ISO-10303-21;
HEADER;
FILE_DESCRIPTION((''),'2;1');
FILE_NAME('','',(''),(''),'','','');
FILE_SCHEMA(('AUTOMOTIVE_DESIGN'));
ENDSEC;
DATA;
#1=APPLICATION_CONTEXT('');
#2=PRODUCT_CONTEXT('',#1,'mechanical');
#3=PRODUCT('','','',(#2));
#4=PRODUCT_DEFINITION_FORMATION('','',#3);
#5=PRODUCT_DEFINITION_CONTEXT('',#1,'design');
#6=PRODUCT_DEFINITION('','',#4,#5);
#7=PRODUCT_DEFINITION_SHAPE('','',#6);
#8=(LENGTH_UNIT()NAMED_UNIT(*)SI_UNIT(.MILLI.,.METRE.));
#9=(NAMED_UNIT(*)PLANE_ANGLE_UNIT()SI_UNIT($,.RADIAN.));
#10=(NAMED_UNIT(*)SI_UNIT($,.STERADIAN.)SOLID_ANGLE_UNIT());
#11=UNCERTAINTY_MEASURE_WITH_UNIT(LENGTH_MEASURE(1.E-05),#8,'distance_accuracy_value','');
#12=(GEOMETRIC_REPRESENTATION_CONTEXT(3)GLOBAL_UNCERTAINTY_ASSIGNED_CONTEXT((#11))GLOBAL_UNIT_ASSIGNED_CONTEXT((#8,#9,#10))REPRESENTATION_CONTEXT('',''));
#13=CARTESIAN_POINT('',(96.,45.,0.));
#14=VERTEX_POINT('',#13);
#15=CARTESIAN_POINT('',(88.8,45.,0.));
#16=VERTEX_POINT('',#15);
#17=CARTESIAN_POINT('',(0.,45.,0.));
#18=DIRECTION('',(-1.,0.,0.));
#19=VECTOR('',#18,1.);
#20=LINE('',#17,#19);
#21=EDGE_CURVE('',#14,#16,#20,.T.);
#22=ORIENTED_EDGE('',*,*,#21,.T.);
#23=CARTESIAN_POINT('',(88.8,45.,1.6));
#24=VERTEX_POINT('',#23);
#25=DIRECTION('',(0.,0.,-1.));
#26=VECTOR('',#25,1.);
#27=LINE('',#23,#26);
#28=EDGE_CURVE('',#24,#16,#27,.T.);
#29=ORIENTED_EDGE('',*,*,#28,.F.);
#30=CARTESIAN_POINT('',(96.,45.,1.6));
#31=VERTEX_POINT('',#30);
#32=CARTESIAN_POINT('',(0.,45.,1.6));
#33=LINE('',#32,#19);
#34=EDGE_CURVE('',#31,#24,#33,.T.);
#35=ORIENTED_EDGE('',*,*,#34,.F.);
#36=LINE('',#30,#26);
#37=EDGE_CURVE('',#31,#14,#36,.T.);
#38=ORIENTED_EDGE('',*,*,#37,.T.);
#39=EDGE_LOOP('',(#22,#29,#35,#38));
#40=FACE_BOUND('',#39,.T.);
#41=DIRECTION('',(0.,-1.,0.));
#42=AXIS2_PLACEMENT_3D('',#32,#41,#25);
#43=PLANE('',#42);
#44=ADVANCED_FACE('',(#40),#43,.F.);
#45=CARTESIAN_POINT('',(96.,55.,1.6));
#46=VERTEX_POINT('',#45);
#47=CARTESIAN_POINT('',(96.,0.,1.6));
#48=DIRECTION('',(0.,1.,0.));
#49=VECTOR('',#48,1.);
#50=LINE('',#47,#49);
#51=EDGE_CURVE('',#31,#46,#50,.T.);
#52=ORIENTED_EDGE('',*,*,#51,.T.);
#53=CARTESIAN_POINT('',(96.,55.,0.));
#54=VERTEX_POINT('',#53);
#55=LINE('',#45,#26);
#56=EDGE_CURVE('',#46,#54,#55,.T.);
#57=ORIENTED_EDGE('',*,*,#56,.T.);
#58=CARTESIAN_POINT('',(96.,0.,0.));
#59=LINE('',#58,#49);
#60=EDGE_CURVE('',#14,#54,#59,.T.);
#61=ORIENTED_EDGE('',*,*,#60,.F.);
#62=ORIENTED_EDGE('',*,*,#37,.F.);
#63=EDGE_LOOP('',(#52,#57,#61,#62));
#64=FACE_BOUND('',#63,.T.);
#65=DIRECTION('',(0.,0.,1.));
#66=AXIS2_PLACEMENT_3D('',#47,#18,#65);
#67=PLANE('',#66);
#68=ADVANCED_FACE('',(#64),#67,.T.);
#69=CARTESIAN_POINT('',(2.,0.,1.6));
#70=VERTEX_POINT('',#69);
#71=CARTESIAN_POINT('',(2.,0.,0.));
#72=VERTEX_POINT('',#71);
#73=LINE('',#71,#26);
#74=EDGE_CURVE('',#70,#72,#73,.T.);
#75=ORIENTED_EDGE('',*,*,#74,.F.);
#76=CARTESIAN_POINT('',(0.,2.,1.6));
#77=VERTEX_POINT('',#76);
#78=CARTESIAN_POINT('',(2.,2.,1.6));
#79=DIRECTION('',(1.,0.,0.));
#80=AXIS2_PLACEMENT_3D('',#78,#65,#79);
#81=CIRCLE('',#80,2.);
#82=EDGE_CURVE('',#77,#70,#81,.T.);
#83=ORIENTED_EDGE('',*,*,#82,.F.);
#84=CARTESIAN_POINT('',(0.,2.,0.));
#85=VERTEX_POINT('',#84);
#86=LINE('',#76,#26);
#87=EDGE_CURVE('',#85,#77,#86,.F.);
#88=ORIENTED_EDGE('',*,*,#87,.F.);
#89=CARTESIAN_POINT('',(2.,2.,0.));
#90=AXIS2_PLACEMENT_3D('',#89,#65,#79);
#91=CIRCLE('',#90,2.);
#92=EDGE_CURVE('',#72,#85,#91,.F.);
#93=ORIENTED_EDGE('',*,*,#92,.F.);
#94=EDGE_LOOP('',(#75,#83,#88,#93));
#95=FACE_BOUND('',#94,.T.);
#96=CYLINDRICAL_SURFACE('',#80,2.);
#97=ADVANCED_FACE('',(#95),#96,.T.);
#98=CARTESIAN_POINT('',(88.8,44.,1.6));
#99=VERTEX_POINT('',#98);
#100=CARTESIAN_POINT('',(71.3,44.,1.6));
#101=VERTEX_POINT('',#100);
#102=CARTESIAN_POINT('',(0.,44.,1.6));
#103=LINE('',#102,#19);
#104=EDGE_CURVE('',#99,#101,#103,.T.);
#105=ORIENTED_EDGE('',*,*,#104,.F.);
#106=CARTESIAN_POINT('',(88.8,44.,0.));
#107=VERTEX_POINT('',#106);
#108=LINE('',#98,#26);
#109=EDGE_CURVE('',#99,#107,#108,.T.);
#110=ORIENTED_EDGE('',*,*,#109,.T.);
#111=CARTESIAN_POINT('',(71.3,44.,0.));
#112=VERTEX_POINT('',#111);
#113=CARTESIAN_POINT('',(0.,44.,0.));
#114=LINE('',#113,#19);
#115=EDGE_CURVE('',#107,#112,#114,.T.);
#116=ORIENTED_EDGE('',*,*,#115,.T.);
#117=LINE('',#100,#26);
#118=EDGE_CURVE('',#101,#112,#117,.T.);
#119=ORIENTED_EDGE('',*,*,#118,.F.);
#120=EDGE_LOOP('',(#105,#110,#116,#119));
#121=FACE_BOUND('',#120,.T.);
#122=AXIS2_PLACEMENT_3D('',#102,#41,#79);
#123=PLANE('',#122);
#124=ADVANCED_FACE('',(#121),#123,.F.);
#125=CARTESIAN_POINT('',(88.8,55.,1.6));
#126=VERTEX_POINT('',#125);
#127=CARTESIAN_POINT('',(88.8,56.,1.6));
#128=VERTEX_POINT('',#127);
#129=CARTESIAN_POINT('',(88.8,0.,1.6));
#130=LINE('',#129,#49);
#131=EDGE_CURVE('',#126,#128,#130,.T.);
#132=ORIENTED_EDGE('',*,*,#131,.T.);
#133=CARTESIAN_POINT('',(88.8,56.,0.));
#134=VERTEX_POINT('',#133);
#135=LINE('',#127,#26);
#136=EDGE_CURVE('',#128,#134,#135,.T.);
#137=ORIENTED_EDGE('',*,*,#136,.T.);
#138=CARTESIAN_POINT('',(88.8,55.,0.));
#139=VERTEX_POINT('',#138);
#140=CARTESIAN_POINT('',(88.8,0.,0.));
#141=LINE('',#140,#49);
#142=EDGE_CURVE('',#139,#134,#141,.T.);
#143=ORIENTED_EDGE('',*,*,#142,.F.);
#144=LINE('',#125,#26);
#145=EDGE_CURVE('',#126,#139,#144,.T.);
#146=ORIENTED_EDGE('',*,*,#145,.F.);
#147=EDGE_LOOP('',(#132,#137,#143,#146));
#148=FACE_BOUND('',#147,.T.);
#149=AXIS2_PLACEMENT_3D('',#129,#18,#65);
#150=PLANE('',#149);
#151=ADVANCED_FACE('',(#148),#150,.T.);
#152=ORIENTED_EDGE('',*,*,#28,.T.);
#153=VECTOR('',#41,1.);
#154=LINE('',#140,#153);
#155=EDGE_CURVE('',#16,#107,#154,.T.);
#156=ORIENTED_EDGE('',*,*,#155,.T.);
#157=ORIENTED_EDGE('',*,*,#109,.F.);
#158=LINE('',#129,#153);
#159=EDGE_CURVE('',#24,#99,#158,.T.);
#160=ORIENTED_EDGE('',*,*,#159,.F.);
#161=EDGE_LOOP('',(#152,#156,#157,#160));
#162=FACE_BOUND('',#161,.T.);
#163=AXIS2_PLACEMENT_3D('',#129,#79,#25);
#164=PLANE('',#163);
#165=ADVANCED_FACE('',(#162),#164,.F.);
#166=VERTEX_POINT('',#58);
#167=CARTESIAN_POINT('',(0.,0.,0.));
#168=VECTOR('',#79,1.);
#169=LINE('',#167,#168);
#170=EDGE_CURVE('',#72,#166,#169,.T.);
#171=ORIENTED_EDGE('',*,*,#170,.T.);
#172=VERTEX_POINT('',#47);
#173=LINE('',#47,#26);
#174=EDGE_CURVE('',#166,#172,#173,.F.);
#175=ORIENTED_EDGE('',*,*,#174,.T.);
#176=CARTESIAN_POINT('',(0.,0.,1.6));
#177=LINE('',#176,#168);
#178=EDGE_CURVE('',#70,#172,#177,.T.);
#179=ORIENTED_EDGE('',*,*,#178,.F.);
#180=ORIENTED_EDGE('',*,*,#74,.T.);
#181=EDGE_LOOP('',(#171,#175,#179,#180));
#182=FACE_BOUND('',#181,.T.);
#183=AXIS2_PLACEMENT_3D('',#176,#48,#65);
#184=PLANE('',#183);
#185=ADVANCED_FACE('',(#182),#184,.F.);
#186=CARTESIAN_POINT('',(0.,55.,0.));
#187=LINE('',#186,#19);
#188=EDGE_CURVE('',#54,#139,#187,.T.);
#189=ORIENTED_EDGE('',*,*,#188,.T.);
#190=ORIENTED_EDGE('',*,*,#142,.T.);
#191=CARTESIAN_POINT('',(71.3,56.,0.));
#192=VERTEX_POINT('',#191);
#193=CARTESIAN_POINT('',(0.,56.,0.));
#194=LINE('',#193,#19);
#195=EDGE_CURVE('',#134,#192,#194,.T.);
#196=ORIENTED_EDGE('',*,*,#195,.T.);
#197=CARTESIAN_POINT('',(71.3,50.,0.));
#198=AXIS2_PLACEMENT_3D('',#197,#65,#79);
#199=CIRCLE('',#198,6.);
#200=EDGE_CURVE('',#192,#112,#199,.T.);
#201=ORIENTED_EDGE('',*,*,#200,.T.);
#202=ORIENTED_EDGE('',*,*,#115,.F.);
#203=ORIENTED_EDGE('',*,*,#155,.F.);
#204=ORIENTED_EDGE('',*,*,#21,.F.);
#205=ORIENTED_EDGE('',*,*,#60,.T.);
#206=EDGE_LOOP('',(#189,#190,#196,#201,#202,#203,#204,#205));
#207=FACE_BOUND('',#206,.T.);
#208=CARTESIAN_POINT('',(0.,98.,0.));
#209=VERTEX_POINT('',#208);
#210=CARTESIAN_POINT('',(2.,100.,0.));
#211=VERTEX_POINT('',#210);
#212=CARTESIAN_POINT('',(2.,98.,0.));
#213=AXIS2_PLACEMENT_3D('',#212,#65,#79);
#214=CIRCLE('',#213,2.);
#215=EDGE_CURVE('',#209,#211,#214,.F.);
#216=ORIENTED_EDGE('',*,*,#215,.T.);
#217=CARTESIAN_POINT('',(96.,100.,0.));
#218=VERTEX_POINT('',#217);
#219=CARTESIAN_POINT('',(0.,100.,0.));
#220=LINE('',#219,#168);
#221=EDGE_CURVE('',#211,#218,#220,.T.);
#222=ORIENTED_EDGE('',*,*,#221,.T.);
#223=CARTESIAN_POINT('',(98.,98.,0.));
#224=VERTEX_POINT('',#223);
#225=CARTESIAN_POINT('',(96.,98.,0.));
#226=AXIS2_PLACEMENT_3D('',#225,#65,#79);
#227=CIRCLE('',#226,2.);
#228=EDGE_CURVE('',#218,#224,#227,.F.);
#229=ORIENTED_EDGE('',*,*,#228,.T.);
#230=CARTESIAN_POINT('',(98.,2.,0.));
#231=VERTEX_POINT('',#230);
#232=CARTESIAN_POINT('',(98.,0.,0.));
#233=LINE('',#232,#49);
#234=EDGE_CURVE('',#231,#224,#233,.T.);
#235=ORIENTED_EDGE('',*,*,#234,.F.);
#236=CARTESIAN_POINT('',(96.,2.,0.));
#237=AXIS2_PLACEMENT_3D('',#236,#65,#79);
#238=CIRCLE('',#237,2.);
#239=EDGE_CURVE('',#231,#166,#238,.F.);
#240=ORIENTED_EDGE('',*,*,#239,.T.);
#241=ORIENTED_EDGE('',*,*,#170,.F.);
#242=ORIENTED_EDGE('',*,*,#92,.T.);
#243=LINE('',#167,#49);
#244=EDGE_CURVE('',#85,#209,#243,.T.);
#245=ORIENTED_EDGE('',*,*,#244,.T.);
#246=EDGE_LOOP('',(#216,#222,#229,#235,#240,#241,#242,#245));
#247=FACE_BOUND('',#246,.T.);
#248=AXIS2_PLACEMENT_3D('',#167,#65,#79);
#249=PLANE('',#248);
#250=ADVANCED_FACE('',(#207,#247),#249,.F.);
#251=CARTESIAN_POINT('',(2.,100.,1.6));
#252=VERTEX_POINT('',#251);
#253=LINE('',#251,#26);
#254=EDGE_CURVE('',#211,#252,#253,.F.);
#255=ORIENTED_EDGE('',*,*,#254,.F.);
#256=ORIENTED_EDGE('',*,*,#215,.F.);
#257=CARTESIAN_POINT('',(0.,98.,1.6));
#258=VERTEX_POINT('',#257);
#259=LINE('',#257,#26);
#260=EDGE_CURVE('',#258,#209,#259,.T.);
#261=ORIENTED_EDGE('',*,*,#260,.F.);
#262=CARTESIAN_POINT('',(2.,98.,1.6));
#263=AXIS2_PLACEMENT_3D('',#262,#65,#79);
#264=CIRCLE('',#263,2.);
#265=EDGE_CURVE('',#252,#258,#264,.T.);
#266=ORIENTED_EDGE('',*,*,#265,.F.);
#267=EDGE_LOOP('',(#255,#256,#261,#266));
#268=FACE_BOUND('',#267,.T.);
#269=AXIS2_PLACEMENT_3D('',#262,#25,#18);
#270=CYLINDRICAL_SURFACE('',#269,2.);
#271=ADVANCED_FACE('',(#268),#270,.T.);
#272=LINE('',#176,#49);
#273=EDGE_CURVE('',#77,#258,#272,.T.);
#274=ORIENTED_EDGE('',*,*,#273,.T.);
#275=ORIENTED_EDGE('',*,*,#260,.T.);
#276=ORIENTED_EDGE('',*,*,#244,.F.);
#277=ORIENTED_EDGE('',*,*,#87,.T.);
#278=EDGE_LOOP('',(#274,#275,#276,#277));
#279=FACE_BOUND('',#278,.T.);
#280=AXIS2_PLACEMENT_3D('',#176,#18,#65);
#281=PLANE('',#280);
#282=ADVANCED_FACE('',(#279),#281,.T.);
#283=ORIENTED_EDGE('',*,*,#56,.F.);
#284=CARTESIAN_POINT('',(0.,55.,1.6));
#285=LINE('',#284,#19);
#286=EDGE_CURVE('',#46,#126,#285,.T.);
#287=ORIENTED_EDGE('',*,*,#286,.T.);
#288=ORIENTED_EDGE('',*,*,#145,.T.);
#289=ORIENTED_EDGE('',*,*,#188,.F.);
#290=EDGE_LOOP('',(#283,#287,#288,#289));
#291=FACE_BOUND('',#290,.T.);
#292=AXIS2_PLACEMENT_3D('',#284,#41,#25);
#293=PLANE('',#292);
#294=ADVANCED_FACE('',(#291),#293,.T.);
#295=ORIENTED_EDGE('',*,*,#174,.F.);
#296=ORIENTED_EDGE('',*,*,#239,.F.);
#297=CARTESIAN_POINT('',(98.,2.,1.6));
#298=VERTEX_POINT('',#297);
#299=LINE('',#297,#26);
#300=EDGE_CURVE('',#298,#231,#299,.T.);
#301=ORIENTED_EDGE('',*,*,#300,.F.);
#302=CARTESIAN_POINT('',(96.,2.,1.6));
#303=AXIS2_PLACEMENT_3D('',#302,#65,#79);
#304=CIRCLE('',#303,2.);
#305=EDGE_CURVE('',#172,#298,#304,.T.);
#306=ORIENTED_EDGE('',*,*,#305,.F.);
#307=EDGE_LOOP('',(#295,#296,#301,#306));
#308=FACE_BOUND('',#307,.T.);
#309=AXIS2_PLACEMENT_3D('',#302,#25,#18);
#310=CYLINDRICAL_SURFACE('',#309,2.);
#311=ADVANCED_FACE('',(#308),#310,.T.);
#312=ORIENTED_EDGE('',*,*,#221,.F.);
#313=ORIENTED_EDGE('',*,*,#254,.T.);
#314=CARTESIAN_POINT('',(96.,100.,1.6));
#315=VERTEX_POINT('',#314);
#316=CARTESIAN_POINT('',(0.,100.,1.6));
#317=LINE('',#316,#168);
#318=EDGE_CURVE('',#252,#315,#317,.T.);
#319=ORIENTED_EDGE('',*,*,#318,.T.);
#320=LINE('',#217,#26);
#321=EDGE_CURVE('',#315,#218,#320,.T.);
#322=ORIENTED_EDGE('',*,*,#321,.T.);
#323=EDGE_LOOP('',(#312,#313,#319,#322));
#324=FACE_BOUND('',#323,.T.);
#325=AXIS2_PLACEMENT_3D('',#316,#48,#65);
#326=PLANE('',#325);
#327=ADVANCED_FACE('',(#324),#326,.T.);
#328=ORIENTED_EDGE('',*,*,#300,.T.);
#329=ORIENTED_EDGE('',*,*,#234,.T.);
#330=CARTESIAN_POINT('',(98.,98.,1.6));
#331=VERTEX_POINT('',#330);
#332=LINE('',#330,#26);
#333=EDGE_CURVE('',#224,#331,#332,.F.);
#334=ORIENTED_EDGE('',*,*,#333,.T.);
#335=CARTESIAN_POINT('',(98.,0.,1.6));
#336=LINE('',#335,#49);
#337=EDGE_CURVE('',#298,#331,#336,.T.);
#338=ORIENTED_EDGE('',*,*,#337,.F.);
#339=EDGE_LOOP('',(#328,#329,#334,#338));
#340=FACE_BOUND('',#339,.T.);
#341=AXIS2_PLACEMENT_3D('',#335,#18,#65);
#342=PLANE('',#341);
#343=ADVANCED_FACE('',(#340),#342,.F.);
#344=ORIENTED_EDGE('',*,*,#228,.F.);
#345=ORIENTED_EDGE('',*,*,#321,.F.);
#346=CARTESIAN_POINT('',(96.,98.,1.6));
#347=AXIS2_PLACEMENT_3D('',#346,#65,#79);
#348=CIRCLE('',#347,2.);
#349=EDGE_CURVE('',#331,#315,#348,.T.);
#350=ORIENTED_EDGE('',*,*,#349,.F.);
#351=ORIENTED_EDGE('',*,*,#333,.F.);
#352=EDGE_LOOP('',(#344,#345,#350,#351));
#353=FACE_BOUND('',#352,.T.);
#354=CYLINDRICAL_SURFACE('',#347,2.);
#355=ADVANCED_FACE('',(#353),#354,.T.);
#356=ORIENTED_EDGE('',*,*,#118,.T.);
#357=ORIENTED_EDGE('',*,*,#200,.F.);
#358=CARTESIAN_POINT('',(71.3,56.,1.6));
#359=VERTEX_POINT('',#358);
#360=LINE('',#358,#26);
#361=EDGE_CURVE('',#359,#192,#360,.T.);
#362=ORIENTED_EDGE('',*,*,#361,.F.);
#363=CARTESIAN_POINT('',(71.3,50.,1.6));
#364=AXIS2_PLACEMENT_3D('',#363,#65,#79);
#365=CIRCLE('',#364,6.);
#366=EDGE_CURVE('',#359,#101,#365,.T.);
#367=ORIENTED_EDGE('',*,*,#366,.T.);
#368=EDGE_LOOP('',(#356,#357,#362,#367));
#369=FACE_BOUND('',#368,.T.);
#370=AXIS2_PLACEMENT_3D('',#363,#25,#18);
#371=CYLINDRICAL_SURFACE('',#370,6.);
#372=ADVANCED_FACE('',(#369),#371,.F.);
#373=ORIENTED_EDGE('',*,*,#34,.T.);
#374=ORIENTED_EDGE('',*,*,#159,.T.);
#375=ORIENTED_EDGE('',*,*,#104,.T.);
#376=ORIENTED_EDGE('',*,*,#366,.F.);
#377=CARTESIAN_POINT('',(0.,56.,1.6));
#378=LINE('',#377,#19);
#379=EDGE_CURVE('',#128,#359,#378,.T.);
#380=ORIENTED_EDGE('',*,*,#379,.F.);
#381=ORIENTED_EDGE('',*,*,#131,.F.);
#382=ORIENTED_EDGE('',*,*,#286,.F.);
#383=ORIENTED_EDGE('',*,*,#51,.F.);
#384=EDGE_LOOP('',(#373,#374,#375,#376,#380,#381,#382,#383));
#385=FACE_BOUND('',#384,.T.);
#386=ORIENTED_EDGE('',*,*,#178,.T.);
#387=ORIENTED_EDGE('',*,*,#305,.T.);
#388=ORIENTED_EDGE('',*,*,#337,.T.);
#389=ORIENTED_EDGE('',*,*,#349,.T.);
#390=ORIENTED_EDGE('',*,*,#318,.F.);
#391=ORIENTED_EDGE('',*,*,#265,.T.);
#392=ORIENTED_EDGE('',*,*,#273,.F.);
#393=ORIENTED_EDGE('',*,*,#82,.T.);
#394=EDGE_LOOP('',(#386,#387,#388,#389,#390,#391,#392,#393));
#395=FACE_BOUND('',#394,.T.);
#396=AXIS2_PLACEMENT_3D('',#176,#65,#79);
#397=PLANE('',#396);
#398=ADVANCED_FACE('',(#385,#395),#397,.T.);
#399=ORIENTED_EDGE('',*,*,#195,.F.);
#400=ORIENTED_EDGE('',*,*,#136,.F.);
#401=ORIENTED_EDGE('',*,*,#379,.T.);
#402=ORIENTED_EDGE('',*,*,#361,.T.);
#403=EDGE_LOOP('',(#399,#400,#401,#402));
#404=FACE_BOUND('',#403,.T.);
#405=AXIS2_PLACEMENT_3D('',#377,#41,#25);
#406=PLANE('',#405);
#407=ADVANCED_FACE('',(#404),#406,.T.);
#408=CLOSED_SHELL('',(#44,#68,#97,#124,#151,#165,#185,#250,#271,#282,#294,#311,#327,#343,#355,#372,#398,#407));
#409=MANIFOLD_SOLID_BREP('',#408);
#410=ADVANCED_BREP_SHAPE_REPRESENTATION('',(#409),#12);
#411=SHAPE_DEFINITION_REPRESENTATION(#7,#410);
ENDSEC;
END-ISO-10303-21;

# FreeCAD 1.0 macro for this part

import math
import FreeCAD as App
import Part
import Sketcher
from FreeCAD import Vector
Q = App.Units.Quantity


def edges_at(feature, points):
    """Names of the edges that pass closest to the given points."""
    edges = feature.Shape.Edges
    near = lambda p: min(range(len(edges)), key=lambda i: edges[i].distToShape(Part.Vertex(*p))[0])
    return sorted({f"Edge{near(p) + 1}" for p in points})

doc = App.newDocument("Part")
params = doc.addObject("Spreadsheet::Sheet", "Params")
for row, (alias, value) in enumerate([
    ("sketch1_radius", "6 mm"),
    ("sketch1_width", "98 mm"),
    ("sketch1_height", "100 mm"),
    ("sketch1_height2", "10 mm"),
    ("sketch1_width2", "7.2 mm"),
    ("pad1_length", "1.6 mm"),
    ("fillet_radius", "2 mm"),
], start=1):
    params.set(f"A{row}", alias)
    params.set(f"B{row}", "=" + value)
    params.setAlias(f"B{row}", alias)

body = doc.addObject("PartDesign::Body", "Body")

# Sketch on XY plane
sketch1 = body.newObject("Sketcher::SketchObject", "Sketch")
sketch1.AttachmentSupport = (doc.getObject("XY_Plane"), [""])
sketch1.MapMode = "FlatFace"
sketch1.addGeometry([
    Part.LineSegment(Vector(0, 100, 0), Vector(0, 0, 0)),  # 0
    Part.LineSegment(Vector(0, 0, 0), Vector(98, 0, 0)),  # 1
    Part.LineSegment(Vector(98, 0, 0), Vector(98, 100, 0)),  # 2
    Part.LineSegment(Vector(98, 100, 0), Vector(0, 100, 0)),  # 3
    Part.LineSegment(Vector(88.8, 55, 0), Vector(96, 55, 0)),  # 4
    Part.LineSegment(Vector(96, 55, 0), Vector(96, 45, 0)),  # 5
    Part.LineSegment(Vector(96, 45, 0), Vector(88.8, 45, 0)),  # 6
    Part.LineSegment(Vector(88.8, 45, 0), Vector(88.8, 44, 0)),  # 7
    Part.LineSegment(Vector(88.8, 44, 0), Vector(71.3, 44, 0)),  # 8
    Part.ArcOfCircle(Part.Circle(Vector(71.3, 50, 0), Vector(0, 0, 1), 6), math.radians(90), math.radians(270)),  # 9
    Part.LineSegment(Vector(71.3, 56, 0), Vector(88.8, 56, 0)),  # 10
    Part.LineSegment(Vector(88.8, 56, 0), Vector(88.8, 55, 0)),  # 11
], False)
sketch1.addConstraint([
    Sketcher.Constraint("Coincident", 0, 2, 1, 1),
    Sketcher.Constraint("Coincident", 1, 2, 2, 1),
    Sketcher.Constraint("Coincident", 2, 2, 3, 1),
    Sketcher.Constraint("Coincident", 3, 2, 0, 1),
    Sketcher.Constraint("Coincident", 4, 2, 5, 1),
    Sketcher.Constraint("Coincident", 5, 2, 6, 1),
    Sketcher.Constraint("Coincident", 6, 2, 7, 1),
    Sketcher.Constraint("Coincident", 7, 2, 8, 1),
    Sketcher.Constraint("Tangent", 8, 2, 9, 2),
    Sketcher.Constraint("Tangent", 9, 1, 10, 1),
    Sketcher.Constraint("Coincident", 10, 2, 11, 1),
    Sketcher.Constraint("Coincident", 11, 2, 4, 1),
    Sketcher.Constraint("Vertical", 0),
    Sketcher.Constraint("Horizontal", 1),
    Sketcher.Constraint("Vertical", 2),
    Sketcher.Constraint("Horizontal", 3),
    Sketcher.Constraint("Horizontal", 4),
    Sketcher.Constraint("Vertical", 5),
    Sketcher.Constraint("Horizontal", 6),
    Sketcher.Constraint("Vertical", 7),
    Sketcher.Constraint("Horizontal", 8),
    Sketcher.Constraint("Horizontal", 10),
    Sketcher.Constraint("Vertical", 11),
    Sketcher.Constraint("Coincident", 0, 2, -1, 1),
    Sketcher.Constraint("Vertical", 7, 2, 10, 2),
    Sketcher.Constraint("Equal", 7, 11),
    Sketcher.Constraint("Radius", 9, Q("6 mm")),
    Sketcher.Constraint("DistanceX", 1, 1, 1, 2, Q("98 mm")),
    Sketcher.Constraint("DistanceY", 0, 2, 0, 1, Q("100 mm")),
    Sketcher.Constraint("DistanceY", 5, 2, 5, 1, Q("10 mm")),
    Sketcher.Constraint("DistanceX", 4, 1, 4, 2, Q("7.2 mm")),
    Sketcher.Constraint("DistanceX", 8, 2, 8, 1, Q("17.5 mm")),
    Sketcher.Constraint("DistanceY", -1, 1, 9, 3, Q("50 mm")),
    Sketcher.Constraint("DistanceX", -1, 1, 4, 2, Q("96 mm")),
])
sketch1.setExpression("Constraints[26]", "Params.sketch1_radius")
sketch1.setExpression("Constraints[27]", "Params.sketch1_width")
sketch1.setExpression("Constraints[28]", "Params.sketch1_height")
sketch1.setExpression("Constraints[29]", "Params.sketch1_height2")
sketch1.setExpression("Constraints[30]", "Params.sketch1_width2")
pad1 = body.newObject("PartDesign::Pad", "Pad")
pad1.Profile = sketch1
pad1.setExpression("Length", "Params.pad1_length")
doc.recompute()

fillet = body.newObject("PartDesign::Fillet", "Fillet")
fillet.Base = (pad1, edges_at(pad1, [
    (0, 0, 0.8),
    (0, 100, 0.8),
    (98, 100, 0.8),
    (98, 0, 0.8),
]))
fillet.setExpression("Radius", "Params.fillet_radius")

doc.recompute()
